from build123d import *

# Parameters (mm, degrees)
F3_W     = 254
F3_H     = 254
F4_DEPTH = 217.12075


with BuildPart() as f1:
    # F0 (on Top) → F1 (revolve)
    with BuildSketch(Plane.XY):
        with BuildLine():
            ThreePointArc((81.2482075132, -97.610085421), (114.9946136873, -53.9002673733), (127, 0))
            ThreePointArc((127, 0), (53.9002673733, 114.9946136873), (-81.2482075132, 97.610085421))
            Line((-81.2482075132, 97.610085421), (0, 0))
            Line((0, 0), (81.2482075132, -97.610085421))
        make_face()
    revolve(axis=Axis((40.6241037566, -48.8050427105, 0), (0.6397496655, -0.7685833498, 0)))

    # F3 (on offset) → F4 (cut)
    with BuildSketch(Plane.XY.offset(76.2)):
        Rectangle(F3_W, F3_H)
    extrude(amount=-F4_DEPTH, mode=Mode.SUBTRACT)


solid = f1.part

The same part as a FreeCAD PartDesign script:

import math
import FreeCAD as App
import Part
import Sketcher
from FreeCAD import Vector
Q = App.Units.Quantity


def add_polygon(sketch, points):
    """Adds a closed chain of lines whose ends are joined by coincident constraints."""
    first, n = sketch.GeometryCount, len(points)
    for a, b in zip(points, points[1:] + points[:1]):
        sketch.addGeometry(Part.LineSegment(App.Vector(*a, 0), App.Vector(*b, 0)), False)
    for i in range(n):
        sketch.addConstraint(Sketcher.Constraint("Coincident", first + i, 2, first + (i + 1) % n, 1))

doc = App.newDocument("Part")
body = doc.addObject("PartDesign::Body", "Body")

# Sketch on XY plane
sketch1 = body.newObject("Sketcher::SketchObject", "Sketch")
sketch1.AttachmentSupport = (doc.getObject("XY_Plane"), [""])
sketch1.MapMode = "FlatFace"
sketch1.addGeometry(Part.ArcOfCircle(Part.Circle(Vector(0, 0, 0), Vector(0, 0, 1), 127), math.radians(-50), math.radians(130)), False)
sketch1.addGeometry(Part.LineSegment(Vector(-81, 98, 0), Vector(81, -98, 0)), False)
sketch1.addGeometry(Part.LineSegment(Vector(-81, 98, 0), Vector(81, -98, 0)), True)  # axis
sketch1.addConstraint(Sketcher.Constraint("Coincident", 0, 1, 1, 2))
sketch1.addConstraint(Sketcher.Constraint("Coincident", 1, 1, 0, 2))
sketch1.addConstraint(Sketcher.Constraint("Coincident", 0, 3, -1, 1))
sketch1.addConstraint(Sketcher.Constraint("Coincident", 2, 1, 1, 1))
sketch1.addConstraint(Sketcher.Constraint("Coincident", 2, 2, 0, 1))
sketch1.addConstraint(Sketcher.Constraint("Radius", 0, Q("5 in")))
sketch1.addConstraint(Sketcher.Constraint("DistanceY", 0, 1, 1, 1, Q("195.220171 mm")))
sketch1.addConstraint(Sketcher.Constraint("DistanceX", -1, 1, 0, 1, Q("81.248208 mm")))
revolution = body.newObject("PartDesign::Revolution", "Revolution")
revolution.Profile = sketch1
revolution.ReferenceAxis = (sketch1, ["Axis0"])
revolution.Angle = 360

# Sketch on XY plane
sketch2 = body.newObject("Sketcher::SketchObject", "Sketch001")
sketch2.AttachmentSupport = (doc.getObject("XY_Plane"), [""])
sketch2.MapMode = "FlatFace"
sketch2.AttachmentOffset = App.Placement(Vector(0, 0, 3 * 25.4), App.Rotation())
add_polygon(sketch2, [(-127, 127), (-127, -127), (127, -127), (127, 127)])  # lines 0-3
sketch2.addConstraint(Sketcher.Constraint("Vertical", 0))
sketch2.addConstraint(Sketcher.Constraint("Horizontal", 1))
sketch2.addConstraint(Sketcher.Constraint("Vertical", 2))
sketch2.addConstraint(Sketcher.Constraint("Horizontal", 3))
sketch2.addConstraint(Sketcher.Constraint("Symmetric", 0, 2, 2, 2, -1, 1))
sketch2.addConstraint(Sketcher.Constraint("Equal", 3, 0))
sketch2.addConstraint(Sketcher.Constraint("DistanceX", 1, 1, 1, 2, Q("10 in")))
pocket1 = body.newObject("PartDesign::Pocket", "Pocket")
pocket1.Profile = sketch2
pocket1.Length = 217.12075

doc.recompute()
